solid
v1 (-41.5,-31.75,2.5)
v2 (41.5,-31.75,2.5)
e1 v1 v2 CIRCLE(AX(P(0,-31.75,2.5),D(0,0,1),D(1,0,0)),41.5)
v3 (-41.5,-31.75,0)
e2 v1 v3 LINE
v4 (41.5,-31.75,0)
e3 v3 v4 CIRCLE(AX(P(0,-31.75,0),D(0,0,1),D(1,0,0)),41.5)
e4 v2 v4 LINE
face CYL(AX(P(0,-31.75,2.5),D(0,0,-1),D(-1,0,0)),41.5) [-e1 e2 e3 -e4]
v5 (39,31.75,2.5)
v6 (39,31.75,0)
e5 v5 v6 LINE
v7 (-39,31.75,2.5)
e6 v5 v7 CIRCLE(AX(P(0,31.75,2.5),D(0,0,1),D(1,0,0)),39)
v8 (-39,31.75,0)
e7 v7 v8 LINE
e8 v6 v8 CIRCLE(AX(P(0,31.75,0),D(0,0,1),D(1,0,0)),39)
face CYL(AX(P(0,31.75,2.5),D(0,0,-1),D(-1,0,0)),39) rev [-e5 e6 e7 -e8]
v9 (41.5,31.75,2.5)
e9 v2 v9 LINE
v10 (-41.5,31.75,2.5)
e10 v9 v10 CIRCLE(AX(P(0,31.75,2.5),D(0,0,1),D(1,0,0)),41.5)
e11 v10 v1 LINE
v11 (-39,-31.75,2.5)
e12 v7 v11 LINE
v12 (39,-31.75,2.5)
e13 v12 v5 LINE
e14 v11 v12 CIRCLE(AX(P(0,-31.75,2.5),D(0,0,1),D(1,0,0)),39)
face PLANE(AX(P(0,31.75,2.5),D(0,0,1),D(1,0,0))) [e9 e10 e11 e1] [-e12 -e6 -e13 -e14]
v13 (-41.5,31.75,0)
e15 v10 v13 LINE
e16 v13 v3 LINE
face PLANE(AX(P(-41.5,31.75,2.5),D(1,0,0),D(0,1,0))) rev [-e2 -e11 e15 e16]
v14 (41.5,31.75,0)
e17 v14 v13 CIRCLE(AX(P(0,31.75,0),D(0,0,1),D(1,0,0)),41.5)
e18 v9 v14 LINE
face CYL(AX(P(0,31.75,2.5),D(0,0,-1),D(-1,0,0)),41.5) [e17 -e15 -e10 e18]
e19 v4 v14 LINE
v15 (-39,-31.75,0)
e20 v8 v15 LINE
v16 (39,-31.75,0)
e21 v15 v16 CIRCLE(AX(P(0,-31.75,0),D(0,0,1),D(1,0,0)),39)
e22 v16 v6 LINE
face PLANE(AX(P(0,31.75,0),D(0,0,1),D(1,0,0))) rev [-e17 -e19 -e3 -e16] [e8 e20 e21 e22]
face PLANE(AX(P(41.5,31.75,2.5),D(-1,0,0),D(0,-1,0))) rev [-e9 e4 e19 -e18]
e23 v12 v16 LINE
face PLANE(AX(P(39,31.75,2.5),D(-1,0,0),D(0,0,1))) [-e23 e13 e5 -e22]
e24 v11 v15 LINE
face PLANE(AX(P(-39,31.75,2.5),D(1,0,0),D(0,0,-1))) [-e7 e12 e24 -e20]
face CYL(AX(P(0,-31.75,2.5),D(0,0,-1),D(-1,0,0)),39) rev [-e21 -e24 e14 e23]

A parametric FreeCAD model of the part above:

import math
import FreeCAD as App
import Part
import Sketcher

V = App.Vector
Q = App.Units.Quantity

doc = App.newDocument("Part")
body = doc.addObject("PartDesign::Body", "Body")

# Sketch on XY plane
sketch1 = body.newObject("Sketcher::SketchObject", "Sketch")
sketch1.AttachmentSupport = (doc.getObject("XY_Plane"), [""])
sketch1.MapMode = "FlatFace"
sketch1.addGeometry(Part.LineSegment(V(42, -32, 0), V(42, 32, 0)), False)
sketch1.addGeometry(Part.ArcOfCircle(Part.Circle(V(0, 32, 0), V(0, 0, 1), 42), math.radians(0), math.radians(180)), False)
sketch1.addGeometry(Part.LineSegment(V(-42, 32, 0), V(-42, -32, 0)), False)
sketch1.addGeometry(Part.ArcOfCircle(Part.Circle(V(0, -32, 0), V(0, 0, 1), 42), math.radians(180), math.radians(360)), False)
sketch1.addGeometry(Part.LineSegment(V(39, 32, 0), V(39, -32, 0)), False)
sketch1.addGeometry(Part.ArcOfCircle(Part.Circle(V(0, -32, 0), V(0, 0, 1), 39), math.radians(180), math.radians(360)), False)
sketch1.addGeometry(Part.LineSegment(V(-39, -32, 0), V(-39, 32, 0)), False)
sketch1.addGeometry(Part.ArcOfCircle(Part.Circle(V(0, 32, 0), V(0, 0, 1), 39), math.radians(0), math.radians(180)), False)
sketch1.addConstraint(Sketcher.Constraint("Tangent", 0, 2, 1, 1))
sketch1.addConstraint(Sketcher.Constraint("Tangent", 1, 2, 2, 1))
sketch1.addConstraint(Sketcher.Constraint("Tangent", 2, 2, 3, 1))
sketch1.addConstraint(Sketcher.Constraint("Tangent", 3, 2, 0, 1))
sketch1.addConstraint(Sketcher.Constraint("Tangent", 4, 2, 5, 2))
sketch1.addConstraint(Sketcher.Constraint("Tangent", 5, 1, 6, 1))
sketch1.addConstraint(Sketcher.Constraint("Tangent", 6, 2, 7, 2))
sketch1.addConstraint(Sketcher.Constraint("Tangent", 7, 1, 4, 1))
sketch1.addConstraint(Sketcher.Constraint("Vertical", 0))
sketch1.addConstraint(Sketcher.Constraint("Vertical", 2))
sketch1.addConstraint(Sketcher.Constraint("Vertical", 4))
sketch1.addConstraint(Sketcher.Constraint("Vertical", 6))
sketch1.addConstraint(Sketcher.Constraint("Coincident", 5, 3, 3, 3))
sketch1.addConstraint(Sketcher.Constraint("Symmetric", 1, 3, 3, 3, -1, 1))
sketch1.addConstraint(Sketcher.Constraint("Horizontal", 7, 3, 0, 2))
sketch1.addConstraint(Sketcher.Constraint("Radius", 5, Q("39 mm")))
sketch1.addConstraint(Sketcher.Constraint("Radius", 1, Q("41.5 mm")))
sketch1.addConstraint(Sketcher.Constraint("DistanceY", 0, 1, 0, 2, Q("63.5 mm")))
pad1 = body.newObject("PartDesign::Pad", "Pad")
pad1.Profile = sketch1
pad1.Length = 2.5

doc.recompute()
